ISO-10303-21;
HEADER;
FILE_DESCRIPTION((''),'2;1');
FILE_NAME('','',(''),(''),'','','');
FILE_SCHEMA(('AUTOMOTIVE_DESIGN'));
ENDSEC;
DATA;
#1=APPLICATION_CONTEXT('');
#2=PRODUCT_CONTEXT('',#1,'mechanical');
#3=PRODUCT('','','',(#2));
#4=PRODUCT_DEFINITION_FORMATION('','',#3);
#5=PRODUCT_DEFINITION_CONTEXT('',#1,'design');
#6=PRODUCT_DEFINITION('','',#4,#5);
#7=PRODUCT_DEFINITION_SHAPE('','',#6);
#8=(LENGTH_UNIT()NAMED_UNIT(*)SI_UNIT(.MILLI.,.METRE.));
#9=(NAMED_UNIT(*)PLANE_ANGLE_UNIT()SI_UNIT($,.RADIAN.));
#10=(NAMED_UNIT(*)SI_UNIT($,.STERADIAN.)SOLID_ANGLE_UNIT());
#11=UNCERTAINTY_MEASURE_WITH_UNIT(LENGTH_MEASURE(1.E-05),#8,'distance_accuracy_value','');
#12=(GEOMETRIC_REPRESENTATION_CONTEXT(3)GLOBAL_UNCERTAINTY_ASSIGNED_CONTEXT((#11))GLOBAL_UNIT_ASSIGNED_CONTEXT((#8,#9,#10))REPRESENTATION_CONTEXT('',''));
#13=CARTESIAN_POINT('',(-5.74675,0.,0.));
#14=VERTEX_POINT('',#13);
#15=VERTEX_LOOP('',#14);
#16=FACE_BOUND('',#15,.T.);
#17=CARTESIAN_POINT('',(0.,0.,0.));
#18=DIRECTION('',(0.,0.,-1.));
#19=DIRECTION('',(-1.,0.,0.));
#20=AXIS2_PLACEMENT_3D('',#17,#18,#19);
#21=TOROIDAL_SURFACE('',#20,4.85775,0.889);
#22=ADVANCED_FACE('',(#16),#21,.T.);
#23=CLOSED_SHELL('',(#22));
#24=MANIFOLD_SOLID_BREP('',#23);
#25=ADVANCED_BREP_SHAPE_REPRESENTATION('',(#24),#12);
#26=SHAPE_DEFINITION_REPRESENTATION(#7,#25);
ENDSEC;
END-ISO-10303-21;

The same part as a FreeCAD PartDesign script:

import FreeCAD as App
import Part
import Sketcher
Q = App.Units.Quantity

doc = App.newDocument("Part")
body = doc.addObject("PartDesign::Body", "Body")

# Sketch on XZ plane
sketch1 = body.newObject("Sketcher::SketchObject", "Sketch")
sketch1.AttachmentSupport = (doc.getObject("XZ_Plane"), [""])
sketch1.MapMode = "FlatFace"
sketch1.addGeometry(Part.Circle(App.Vector(4.85775, 0, 0), App.Vector(0, 0, 1), 0.889), False)
sketch1.addConstraint([
    Sketcher.Constraint("PointOnObject", 0, 3, -1),
    Sketcher.Constraint("Diameter", 0, Q("0.07 in")),
    Sketcher.Constraint("DistanceX", -1, 1, 0, 3, 4.85775),
])

# Sketch on XY plane
sketch2 = body.newObject("Sketcher::SketchObject", "Sketch001")
sketch2.AttachmentSupport = (doc.getObject("XY_Plane"), [""])
sketch2.MapMode = "FlatFace"
sketch2.addGeometry(Part.Circle(App.Vector(0, 0, 0), App.Vector(0, 0, 1), 4.85775), False)
sketch2.addConstraint([
    Sketcher.Constraint("Coincident", 0, 3, -1, 1),
    Sketcher.Constraint("Diameter", 0, Q("0.3825 in")),
])
doc.recompute()

additivepipe = body.newObject("PartDesign::AdditivePipe", "AdditivePipe")
additivepipe.Profile = sketch1
additivepipe.Spine = (sketch2, ["Edge1"])

doc.recompute()
